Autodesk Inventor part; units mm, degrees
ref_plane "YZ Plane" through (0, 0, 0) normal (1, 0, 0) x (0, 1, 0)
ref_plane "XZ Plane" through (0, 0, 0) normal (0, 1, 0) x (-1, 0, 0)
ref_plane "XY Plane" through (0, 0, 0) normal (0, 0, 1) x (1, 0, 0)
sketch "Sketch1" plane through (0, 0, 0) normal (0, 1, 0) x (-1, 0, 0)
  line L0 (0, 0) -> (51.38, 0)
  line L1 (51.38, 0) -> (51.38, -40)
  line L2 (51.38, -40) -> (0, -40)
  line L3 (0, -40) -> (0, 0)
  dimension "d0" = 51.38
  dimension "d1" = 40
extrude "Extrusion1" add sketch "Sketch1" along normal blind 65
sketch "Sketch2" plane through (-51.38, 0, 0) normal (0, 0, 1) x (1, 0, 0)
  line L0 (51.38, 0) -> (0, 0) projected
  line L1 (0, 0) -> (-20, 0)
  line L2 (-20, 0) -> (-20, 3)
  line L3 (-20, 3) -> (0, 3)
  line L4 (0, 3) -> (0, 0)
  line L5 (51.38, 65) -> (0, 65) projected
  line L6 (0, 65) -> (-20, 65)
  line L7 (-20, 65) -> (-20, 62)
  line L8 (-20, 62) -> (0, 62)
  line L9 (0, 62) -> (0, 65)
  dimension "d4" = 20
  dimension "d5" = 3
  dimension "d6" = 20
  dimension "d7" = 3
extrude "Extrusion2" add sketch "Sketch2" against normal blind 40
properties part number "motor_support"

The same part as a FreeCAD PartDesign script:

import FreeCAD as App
import Part
import Sketcher
Q = App.Units.Quantity

doc = App.newDocument("Part")
params = doc.addObject("Spreadsheet::Sheet", "Params")
for row, (alias, value) in enumerate([
    ("sketch1_height", "40 mm"),
    ("sketch1_width", "51.38 mm"),
    ("pad1_length", "65 mm"),
    ("sketch2_width", "20 mm"),
    ("sketch2_height", "3 mm"),
    ("pad2_length", "40 mm"),
], start=1):
    params.set(f"A{row}", alias)
    params.set(f"B{row}", "=" + value)
    params.setAlias(f"B{row}", alias)

body = doc.addObject("PartDesign::Body", "Body")

sketch1 = doc.addObject("Sketcher::SketchObject", "Sketch")
body.addObject(sketch1)
sketch1.AttachmentSupport = (doc.XZ_Plane, [""])
sketch1.MapMode = "FlatFace"
sketch1.addGeometry(Part.LineSegment(App.Vector(-51, 0, 0), App.Vector(0, 0, 0)), False)
sketch1.addGeometry(Part.LineSegment(App.Vector(0, 0, 0), App.Vector(0, -40, 0)), False)
sketch1.addGeometry(Part.LineSegment(App.Vector(0, -40, 0), App.Vector(-51, -40, 0)), False)
sketch1.addGeometry(Part.LineSegment(App.Vector(-51, -40, 0), App.Vector(-51, 0, 0)), False)
sketch1.addConstraint(Sketcher.Constraint("Coincident", 0, 2, 1, 1))
sketch1.addConstraint(Sketcher.Constraint("Coincident", 1, 2, 2, 1))
sketch1.addConstraint(Sketcher.Constraint("Coincident", 2, 2, 3, 1))
sketch1.addConstraint(Sketcher.Constraint("Coincident", 3, 2, 0, 1))
sketch1.addConstraint(Sketcher.Constraint("Horizontal", 0))
sketch1.addConstraint(Sketcher.Constraint("Vertical", 1))
sketch1.addConstraint(Sketcher.Constraint("Horizontal", 2))
sketch1.addConstraint(Sketcher.Constraint("Vertical", 3))
sketch1.addConstraint(Sketcher.Constraint("Coincident", 0, 2, -1, 1))
sketch1.addConstraint(Sketcher.Constraint("DistanceY", 1, 2, 1, 1, Q("40 mm")))
sketch1.addConstraint(Sketcher.Constraint("DistanceX", 0, 1, 0, 2, Q("51.38 mm")))
sketch1.setExpression("Constraints[9]", "Params.sketch1_height")
sketch1.setExpression("Constraints[10]", "Params.sketch1_width")
pad1 = doc.addObject("PartDesign::Pad", "Pad")
body.addObject(pad1)
pad1.Profile = sketch1
pad1.setExpression("Length", "Params.pad1_length")
pad1.Reversed = True

sketch2 = doc.addObject("Sketcher::SketchObject", "Sketch001")
body.addObject(sketch2)
sketch2.AttachmentSupport = (doc.XY_Plane, [""])
sketch2.MapMode = "FlatFace"
sketch2.addGeometry(Part.LineSegment(App.Vector(-71.4, 0, 0), App.Vector(-51.4, 0, 0)), False)
sketch2.addGeometry(Part.LineSegment(App.Vector(-51.4, 0, 0), App.Vector(-51.4, 3, 0)), False)
sketch2.addGeometry(Part.LineSegment(App.Vector(-51.4, 3, 0), App.Vector(-71.4, 3, 0)), False)
sketch2.addGeometry(Part.LineSegment(App.Vector(-71.4, 3, 0), App.Vector(-71.4, 0, 0)), False)
sketch2.addGeometry(Part.LineSegment(App.Vector(-51.4, 62, 0), App.Vector(-51.4, 65, 0)), False)
sketch2.addGeometry(Part.LineSegment(App.Vector(-51.4, 65, 0), App.Vector(-71.4, 65, 0)), False)
sketch2.addGeometry(Part.LineSegment(App.Vector(-71.4, 65, 0), App.Vector(-71.4, 62, 0)), False)
sketch2.addGeometry(Part.LineSegment(App.Vector(-71.4, 62, 0), App.Vector(-51.4, 62, 0)), False)
sketch2.addConstraint(Sketcher.Constraint("Coincident", 0, 2, 1, 1))
sketch2.addConstraint(Sketcher.Constraint("Coincident", 1, 2, 2, 1))
sketch2.addConstraint(Sketcher.Constraint("Coincident", 2, 2, 3, 1))
sketch2.addConstraint(Sketcher.Constraint("Coincident", 3, 2, 0, 1))
sketch2.addConstraint(Sketcher.Constraint("Coincident", 4, 2, 5, 1))
sketch2.addConstraint(Sketcher.Constraint("Coincident", 5, 2, 6, 1))
sketch2.addConstraint(Sketcher.Constraint("Coincident", 6, 2, 7, 1))
sketch2.addConstraint(Sketcher.Constraint("Coincident", 7, 2, 4, 1))
sketch2.addConstraint(Sketcher.Constraint("Horizontal", 0))
sketch2.addConstraint(Sketcher.Constraint("Vertical", 1))
sketch2.addConstraint(Sketcher.Constraint("Horizontal", 2))
sketch2.addConstraint(Sketcher.Constraint("Vertical", 3))
sketch2.addConstraint(Sketcher.Constraint("Vertical", 4))
sketch2.addConstraint(Sketcher.Constraint("Horizontal", 5))
sketch2.addConstraint(Sketcher.Constraint("Vertical", 6))
sketch2.addConstraint(Sketcher.Constraint("Horizontal", 7))
sketch2.addConstraint(Sketcher.Constraint("PointOnObject", 0, 2, -1))
sketch2.addConstraint(Sketcher.Constraint("Vertical", 1, 2, 4, 2))
sketch2.addConstraint(Sketcher.Constraint("Vertical", 3, 2, 5, 2))
sketch2.addConstraint(Sketcher.Constraint("Equal", 3, 4))
sketch2.addConstraint(Sketcher.Constraint("DistanceX", 0, 1, 0, 2, Q("20 mm")))
sketch2.addConstraint(Sketcher.Constraint("DistanceY", 1, 1, 1, 2, Q("3 mm")))
sketch2.addConstraint(Sketcher.Constraint("DistanceY", -1, 1, 4, 2, Q("65 mm")))
sketch2.addConstraint(Sketcher.Constraint("DistanceX", 0, 2, -1, 1, Q("51.38 mm")))
sketch2.setExpression("Constraints[20]", "Params.sketch2_width")
sketch2.setExpression("Constraints[21]", "Params.sketch2_height")
pad2 = doc.addObject("PartDesign::Pad", "Pad001")
body.addObject(pad2)
pad2.Profile = sketch2
pad2.setExpression("Length", "Params.pad2_length")
pad2.Reversed = True

doc.recompute()
